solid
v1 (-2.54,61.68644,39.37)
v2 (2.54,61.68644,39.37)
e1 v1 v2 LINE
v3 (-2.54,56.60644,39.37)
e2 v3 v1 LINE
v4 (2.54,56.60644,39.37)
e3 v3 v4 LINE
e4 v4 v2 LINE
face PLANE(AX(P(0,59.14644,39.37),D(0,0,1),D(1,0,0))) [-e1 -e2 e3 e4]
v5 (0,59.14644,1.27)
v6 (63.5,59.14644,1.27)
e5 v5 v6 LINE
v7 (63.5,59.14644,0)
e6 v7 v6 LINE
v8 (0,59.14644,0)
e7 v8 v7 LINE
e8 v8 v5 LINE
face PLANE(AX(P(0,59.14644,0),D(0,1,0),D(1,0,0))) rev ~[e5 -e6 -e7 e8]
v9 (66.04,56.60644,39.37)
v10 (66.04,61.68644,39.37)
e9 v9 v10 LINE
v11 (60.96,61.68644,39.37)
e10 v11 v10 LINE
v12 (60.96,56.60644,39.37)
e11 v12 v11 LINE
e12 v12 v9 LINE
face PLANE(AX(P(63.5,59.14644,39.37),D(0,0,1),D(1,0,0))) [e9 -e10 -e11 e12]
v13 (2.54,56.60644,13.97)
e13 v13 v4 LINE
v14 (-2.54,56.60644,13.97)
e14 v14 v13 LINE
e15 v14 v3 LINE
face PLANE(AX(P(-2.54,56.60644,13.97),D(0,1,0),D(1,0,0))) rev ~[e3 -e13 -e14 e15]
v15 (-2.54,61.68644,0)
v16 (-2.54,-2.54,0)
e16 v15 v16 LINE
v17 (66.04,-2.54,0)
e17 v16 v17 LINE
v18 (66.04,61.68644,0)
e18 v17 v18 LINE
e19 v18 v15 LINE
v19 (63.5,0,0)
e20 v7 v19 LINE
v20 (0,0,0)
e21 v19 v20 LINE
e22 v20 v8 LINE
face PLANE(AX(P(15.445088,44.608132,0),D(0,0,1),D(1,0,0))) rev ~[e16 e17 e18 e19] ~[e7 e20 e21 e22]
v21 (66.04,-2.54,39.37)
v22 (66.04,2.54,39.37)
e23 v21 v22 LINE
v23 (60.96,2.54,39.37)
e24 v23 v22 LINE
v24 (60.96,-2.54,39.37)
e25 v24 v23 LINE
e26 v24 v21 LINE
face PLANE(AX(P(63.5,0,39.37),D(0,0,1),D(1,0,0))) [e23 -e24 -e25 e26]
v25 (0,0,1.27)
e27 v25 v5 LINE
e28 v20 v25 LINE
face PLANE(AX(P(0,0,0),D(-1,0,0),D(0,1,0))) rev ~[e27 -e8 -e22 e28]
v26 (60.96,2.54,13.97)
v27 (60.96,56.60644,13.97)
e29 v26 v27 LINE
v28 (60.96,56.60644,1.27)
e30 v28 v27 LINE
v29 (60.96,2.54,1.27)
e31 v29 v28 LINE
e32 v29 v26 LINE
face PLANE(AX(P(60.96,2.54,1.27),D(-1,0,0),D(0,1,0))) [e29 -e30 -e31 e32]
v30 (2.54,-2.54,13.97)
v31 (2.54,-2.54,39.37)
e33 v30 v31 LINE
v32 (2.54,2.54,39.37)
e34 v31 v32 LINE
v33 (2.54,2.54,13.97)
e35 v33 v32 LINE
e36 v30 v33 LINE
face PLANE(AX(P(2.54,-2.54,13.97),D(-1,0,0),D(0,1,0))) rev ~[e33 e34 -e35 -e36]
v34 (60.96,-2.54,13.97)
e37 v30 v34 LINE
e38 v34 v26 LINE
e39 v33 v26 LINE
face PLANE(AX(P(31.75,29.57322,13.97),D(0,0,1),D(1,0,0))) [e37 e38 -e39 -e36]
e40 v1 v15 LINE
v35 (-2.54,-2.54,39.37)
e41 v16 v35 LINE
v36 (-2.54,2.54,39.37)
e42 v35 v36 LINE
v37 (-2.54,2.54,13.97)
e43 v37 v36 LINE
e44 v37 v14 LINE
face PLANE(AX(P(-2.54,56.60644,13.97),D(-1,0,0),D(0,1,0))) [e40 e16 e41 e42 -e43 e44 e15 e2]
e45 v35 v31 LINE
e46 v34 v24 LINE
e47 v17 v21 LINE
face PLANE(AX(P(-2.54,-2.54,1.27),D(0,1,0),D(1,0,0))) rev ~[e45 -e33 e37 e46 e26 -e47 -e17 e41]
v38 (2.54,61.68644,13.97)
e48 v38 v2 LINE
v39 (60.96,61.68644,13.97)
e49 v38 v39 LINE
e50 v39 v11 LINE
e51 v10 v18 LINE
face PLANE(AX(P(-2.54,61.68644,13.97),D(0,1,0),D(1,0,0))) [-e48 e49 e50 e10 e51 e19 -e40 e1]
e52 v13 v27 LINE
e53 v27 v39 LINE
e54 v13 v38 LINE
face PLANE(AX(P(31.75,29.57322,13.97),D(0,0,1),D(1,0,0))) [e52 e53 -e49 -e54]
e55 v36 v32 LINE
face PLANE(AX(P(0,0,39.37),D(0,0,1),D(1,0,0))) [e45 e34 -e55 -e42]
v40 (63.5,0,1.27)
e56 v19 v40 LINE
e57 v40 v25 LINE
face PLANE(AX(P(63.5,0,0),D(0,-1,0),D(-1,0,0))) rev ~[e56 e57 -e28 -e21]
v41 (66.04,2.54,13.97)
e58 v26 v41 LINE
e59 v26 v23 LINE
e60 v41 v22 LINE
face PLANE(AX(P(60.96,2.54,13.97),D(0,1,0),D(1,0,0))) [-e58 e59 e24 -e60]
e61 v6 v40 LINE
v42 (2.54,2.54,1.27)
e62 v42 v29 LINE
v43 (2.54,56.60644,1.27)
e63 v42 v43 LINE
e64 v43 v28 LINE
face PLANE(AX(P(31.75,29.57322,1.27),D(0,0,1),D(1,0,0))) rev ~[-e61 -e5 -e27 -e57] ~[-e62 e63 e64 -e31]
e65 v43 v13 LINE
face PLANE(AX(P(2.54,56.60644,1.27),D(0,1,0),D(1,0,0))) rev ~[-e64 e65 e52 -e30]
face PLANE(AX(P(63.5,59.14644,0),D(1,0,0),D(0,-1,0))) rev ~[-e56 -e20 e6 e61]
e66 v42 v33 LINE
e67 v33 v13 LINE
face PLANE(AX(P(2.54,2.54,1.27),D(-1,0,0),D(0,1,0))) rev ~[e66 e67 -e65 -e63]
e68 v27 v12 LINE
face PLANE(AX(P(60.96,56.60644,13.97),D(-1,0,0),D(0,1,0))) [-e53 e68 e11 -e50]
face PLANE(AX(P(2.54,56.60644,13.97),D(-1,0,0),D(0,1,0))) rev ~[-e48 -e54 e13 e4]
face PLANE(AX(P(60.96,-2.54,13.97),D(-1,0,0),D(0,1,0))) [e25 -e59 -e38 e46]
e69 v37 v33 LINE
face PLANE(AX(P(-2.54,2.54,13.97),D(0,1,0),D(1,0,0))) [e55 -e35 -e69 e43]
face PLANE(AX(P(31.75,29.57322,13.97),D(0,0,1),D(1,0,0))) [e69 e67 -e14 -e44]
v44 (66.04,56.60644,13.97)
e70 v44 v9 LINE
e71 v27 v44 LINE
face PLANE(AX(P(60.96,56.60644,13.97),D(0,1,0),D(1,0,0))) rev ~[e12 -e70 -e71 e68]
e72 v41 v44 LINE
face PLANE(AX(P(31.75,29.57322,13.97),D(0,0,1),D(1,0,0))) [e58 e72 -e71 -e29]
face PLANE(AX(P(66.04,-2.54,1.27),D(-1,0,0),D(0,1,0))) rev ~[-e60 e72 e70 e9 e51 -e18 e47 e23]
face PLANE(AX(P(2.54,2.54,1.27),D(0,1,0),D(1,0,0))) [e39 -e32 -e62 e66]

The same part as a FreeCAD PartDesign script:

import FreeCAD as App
import Part
import Sketcher
Q = App.Units.Quantity


def add_polygon(sketch, points):
    """Adds a closed chain of lines whose ends are joined by coincident constraints."""
    first, n = sketch.GeometryCount, len(points)
    for a, b in zip(points, points[1:] + points[:1]):
        sketch.addGeometry(Part.LineSegment(App.Vector(*a, 0), App.Vector(*b, 0)), False)
    for i in range(n):
        sketch.addConstraint(Sketcher.Constraint("Coincident", first + i, 2, first + (i + 1) % n, 1))

doc = App.newDocument("Part")
body = doc.addObject("PartDesign::Body", "Body")

sketch1 = doc.addObject("Sketcher::SketchObject", "Sketch")
body.addObject(sketch1)
sketch1.AttachmentSupport = (doc.XY_Plane, [""])
sketch1.MapMode = "FlatFace"
add_polygon(sketch1, [(-2.54, 61.68644), (-2.54, -2.54), (66.04, -2.54), (66.04, 61.68644)])
add_polygon(sketch1, [(0, 0), (0, 59.14644), (63.5, 59.14644), (63.5, 0)])
sketch1.addConstraint([
    Sketcher.Constraint("Vertical", 0),
    Sketcher.Constraint("Horizontal", 1),
    Sketcher.Constraint("Vertical", 2),
    Sketcher.Constraint("Horizontal", 3),
    Sketcher.Constraint("Vertical", 4),
    Sketcher.Constraint("Horizontal", 5),
    Sketcher.Constraint("Vertical", 6),
    Sketcher.Constraint("Horizontal", 7),
    Sketcher.Constraint("Coincident", 7, 2, -1, 1),
    Sketcher.Constraint("DistanceX", 1, 1, 1, 2, Q("2.7 in")),
    Sketcher.Constraint("DistanceX", 5, 1, 5, 2, Q("2.5 in")),
    Sketcher.Constraint("DistanceX", 0, 2, -1, 1, Q("0.1 in")),
    Sketcher.Constraint("DistanceY", 0, 2, -1, 1, Q("0.1 in")),
    Sketcher.Constraint("DistanceY", 4, 2, 3, 2, Q("0.1 in")),
    Sketcher.Constraint("DistanceY", 0, 2, 0, 1, Q("2.5286 in")),
])
pad1 = doc.addObject("PartDesign::Pad", "Pad")
body.addObject(pad1)
pad1.Profile = sketch1
pad1.Length = Q("0.05 in")

sketch2 = doc.addObject("Sketcher::SketchObject", "Sketch001")
body.addObject(sketch2)
sketch2.AttachmentSupport = (doc.XY_Plane, [""])
sketch2.MapMode = "FlatFace"
sketch2.AttachmentOffset = App.Placement(App.Vector(0, 0, 0.05 * 25.4), App.Rotation())
add_polygon(sketch2, [(-2.54, 61.68644), (-2.54, -2.54), (66.04, -2.54), (66.04, 61.68644)])
add_polygon(sketch2, [(60.96, 2.54), (2.54, 2.54), (2.54, 56.60644), (60.96, 56.60644)])
sketch2.addConstraint([
    Sketcher.Constraint("Vertical", 0),
    Sketcher.Constraint("Horizontal", 1),
    Sketcher.Constraint("Vertical", 2),
    Sketcher.Constraint("Horizontal", 3),
    Sketcher.Constraint("Horizontal", 4),
    Sketcher.Constraint("Vertical", 5),
    Sketcher.Constraint("Horizontal", 6),
    Sketcher.Constraint("Vertical", 7),
    Sketcher.Constraint("Symmetric", 0, 2, 4, 2, -1, 1),
    Sketcher.Constraint("DistanceX", 1, 1, 1, 2, Q("2.7 in")),
    Sketcher.Constraint("DistanceX", 4, 2, 4, 1, Q("2.3 in")),
    Sketcher.Constraint("DistanceX", 0, 2, -1, 1, Q("0.1 in")),
    Sketcher.Constraint("DistanceY", 0, 2, -1, 1, Q("0.1 in")),
    Sketcher.Constraint("DistanceY", 5, 2, 3, 2, Q("0.2 in")),
    Sketcher.Constraint("DistanceY", 0, 2, 0, 1, Q("2.5286 in")),
])
pad2 = doc.addObject("PartDesign::Pad", "Pad001")
body.addObject(pad2)
pad2.Profile = sketch2
pad2.Length = Q("0.5 in")

sketch3 = doc.addObject("Sketcher::SketchObject", "Sketch002")
body.addObject(sketch3)
sketch3.AttachmentSupport = (doc.XY_Plane, [""])
sketch3.MapMode = "FlatFace"
sketch3.AttachmentOffset = App.Placement(App.Vector(0, 0, 0.55 * 25.4), App.Rotation())
add_polygon(sketch3, [(-2.54, 61.68644), (-2.54, 56.60644), (2.54, 56.60644), (2.54, 61.68644)])
add_polygon(sketch3, [(-2.54, 2.54), (-2.54, -2.54), (2.54, -2.54), (2.54, 2.54)])
add_polygon(sketch3, [(60.96, 2.54), (60.96, -2.54), (66.04, -2.54), (66.04, 2.54)])
add_polygon(sketch3, [(60.96, 61.68644), (60.96, 56.60644), (66.04, 56.60644), (66.04, 61.68644)])
sketch3.addConstraint([
    Sketcher.Constraint("Vertical", 0),
    Sketcher.Constraint("Horizontal", 1),
    Sketcher.Constraint("Vertical", 2),
    Sketcher.Constraint("Horizontal", 3),
    Sketcher.Constraint("Vertical", 4),
    Sketcher.Constraint("Horizontal", 5),
    Sketcher.Constraint("Vertical", 6),
    Sketcher.Constraint("Horizontal", 7),
    Sketcher.Constraint("Vertical", 8),
    Sketcher.Constraint("Horizontal", 9),
    Sketcher.Constraint("Vertical", 10),
    Sketcher.Constraint("Horizontal", 11),
    Sketcher.Constraint("Vertical", 12),
    Sketcher.Constraint("Horizontal", 13),
    Sketcher.Constraint("Vertical", 14),
    Sketcher.Constraint("Horizontal", 15),
    Sketcher.Constraint("Symmetric", 4, 2, 6, 2, -1, 1),
    Sketcher.Constraint("Horizontal", 5, 2, 8, 2),
    Sketcher.Constraint("Horizontal", 7, 2, 10, 2),
    Sketcher.Constraint("Horizontal", 1, 2, 12, 2),
    Sketcher.Constraint("Horizontal", 3, 2, 14, 2),
    Sketcher.Constraint("Vertical", 3, 2, 4, 2),
    Sketcher.Constraint("Vertical", 2, 2, 5, 2),
    Sketcher.Constraint("Vertical", 11, 2, 12, 2),
    Sketcher.Constraint("Vertical", 10, 2, 13, 2),
    Sketcher.Constraint("Equal", 7, 9),
    Sketcher.Constraint("Equal", 15, 0),
    Sketcher.Constraint("Equal", 2, 4),
    Sketcher.Constraint("DistanceX", 1, 1, 1, 2, Q("0.2 in")),
    Sketcher.Constraint("DistanceX", -1, 1, 8, 2, Q("2.4 in")),
    Sketcher.Constraint("DistanceY", -1, 1, 0, 2, Q("2.2286 in")),
])
pad3 = doc.addObject("PartDesign::Pad", "Pad002")
body.addObject(pad3)
pad3.Profile = sketch3
pad3.Length = Q("1 in")

doc.recompute()
